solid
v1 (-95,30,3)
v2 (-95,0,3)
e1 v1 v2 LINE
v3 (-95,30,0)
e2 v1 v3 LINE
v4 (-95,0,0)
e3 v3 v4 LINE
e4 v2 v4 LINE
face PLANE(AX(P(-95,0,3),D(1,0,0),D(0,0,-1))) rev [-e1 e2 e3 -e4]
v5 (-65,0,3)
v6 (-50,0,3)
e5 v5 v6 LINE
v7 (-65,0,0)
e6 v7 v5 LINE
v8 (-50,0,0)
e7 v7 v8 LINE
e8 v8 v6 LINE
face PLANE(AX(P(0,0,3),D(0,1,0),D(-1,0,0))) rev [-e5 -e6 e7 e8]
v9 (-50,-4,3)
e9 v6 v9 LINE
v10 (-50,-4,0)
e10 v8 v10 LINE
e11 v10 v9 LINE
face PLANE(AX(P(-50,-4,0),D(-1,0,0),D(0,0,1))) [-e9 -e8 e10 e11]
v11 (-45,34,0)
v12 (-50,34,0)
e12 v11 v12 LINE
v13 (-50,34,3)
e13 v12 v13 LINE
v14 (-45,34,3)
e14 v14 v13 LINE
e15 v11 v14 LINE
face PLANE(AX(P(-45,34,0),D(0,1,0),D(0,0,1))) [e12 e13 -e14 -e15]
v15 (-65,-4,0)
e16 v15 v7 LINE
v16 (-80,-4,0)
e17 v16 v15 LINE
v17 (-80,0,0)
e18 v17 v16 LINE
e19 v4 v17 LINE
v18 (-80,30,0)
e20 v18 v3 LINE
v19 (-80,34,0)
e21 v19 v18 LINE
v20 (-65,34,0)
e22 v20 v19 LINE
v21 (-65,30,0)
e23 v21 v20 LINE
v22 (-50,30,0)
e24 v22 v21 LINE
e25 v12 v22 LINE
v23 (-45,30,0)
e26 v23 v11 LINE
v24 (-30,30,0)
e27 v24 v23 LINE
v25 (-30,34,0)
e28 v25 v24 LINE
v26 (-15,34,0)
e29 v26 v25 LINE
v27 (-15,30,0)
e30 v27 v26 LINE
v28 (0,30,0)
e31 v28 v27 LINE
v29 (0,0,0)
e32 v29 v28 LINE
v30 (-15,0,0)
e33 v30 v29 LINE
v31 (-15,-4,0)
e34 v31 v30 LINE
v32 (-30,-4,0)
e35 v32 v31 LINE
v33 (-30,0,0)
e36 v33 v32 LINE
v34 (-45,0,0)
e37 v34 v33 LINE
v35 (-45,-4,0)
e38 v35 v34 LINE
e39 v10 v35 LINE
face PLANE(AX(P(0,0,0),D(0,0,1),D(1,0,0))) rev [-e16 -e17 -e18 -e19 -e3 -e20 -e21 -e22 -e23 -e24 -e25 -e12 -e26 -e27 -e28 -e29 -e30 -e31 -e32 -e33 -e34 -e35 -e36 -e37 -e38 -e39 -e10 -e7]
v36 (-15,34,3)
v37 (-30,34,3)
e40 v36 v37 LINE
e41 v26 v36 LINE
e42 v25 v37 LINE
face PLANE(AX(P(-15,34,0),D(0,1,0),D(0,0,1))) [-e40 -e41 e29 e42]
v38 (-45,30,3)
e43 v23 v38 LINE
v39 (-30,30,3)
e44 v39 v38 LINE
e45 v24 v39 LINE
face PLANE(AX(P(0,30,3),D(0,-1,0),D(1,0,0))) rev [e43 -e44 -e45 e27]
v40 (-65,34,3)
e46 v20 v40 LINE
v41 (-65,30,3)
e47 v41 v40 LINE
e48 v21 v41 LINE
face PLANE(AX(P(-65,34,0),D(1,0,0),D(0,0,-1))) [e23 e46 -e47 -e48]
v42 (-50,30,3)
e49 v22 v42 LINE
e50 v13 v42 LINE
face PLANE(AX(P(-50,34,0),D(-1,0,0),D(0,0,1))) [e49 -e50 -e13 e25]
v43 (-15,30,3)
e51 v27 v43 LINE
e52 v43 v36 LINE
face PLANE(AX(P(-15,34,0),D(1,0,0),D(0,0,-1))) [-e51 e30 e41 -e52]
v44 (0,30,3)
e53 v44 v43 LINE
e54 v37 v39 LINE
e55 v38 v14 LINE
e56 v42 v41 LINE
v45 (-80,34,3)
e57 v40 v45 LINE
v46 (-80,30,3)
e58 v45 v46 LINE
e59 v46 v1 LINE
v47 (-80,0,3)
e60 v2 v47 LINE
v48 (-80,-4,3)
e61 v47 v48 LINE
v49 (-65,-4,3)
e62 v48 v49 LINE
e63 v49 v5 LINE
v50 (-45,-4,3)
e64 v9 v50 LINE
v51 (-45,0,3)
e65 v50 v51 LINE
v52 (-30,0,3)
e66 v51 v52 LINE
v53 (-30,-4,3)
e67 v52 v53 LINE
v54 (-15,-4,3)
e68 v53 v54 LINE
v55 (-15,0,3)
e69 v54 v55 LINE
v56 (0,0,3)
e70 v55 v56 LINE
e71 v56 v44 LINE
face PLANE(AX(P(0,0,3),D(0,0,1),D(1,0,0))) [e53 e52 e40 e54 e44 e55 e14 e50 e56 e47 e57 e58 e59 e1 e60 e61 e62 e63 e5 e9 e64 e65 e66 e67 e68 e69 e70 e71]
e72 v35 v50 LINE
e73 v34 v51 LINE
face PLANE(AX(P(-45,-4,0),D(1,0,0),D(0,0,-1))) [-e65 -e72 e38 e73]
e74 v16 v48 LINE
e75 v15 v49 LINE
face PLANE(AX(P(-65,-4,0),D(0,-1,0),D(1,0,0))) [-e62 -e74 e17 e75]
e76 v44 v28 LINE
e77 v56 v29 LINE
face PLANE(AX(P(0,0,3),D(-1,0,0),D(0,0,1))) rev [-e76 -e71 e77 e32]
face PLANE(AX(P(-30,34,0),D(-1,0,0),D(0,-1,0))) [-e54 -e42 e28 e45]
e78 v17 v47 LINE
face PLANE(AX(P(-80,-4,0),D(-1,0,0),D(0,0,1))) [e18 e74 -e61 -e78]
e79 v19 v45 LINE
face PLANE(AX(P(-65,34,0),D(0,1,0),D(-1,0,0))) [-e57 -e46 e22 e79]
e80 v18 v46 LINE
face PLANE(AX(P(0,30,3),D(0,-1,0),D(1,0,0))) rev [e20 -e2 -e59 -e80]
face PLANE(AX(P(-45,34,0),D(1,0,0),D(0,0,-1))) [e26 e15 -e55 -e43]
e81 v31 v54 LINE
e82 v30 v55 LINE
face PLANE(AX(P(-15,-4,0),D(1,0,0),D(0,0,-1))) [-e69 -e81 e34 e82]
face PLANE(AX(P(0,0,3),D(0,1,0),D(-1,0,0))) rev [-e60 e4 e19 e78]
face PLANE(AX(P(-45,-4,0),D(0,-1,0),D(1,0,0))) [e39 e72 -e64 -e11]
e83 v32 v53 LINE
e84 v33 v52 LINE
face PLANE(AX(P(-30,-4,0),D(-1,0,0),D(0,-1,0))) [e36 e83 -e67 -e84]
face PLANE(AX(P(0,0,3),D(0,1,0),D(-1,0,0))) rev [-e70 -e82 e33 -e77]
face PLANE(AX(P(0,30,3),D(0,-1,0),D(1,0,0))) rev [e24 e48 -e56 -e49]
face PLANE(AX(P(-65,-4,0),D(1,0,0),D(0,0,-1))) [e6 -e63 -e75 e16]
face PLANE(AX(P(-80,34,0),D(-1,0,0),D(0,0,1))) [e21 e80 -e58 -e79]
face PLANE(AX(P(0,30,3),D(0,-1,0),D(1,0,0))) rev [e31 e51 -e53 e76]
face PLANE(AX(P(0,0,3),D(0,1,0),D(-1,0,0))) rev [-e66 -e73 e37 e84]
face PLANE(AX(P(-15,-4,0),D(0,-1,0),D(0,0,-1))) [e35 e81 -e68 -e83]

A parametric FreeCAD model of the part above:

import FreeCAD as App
import Part
import Sketcher
Q = App.Units.Quantity


def add_polygon(sketch, points):
    """Adds a closed chain of lines whose ends are joined by coincident constraints."""
    first, n = sketch.GeometryCount, len(points)
    for a, b in zip(points, points[1:] + points[:1]):
        sketch.addGeometry(Part.LineSegment(App.Vector(*a, 0), App.Vector(*b, 0)), False)
    for i in range(n):
        sketch.addConstraint(Sketcher.Constraint("Coincident", first + i, 2, first + (i + 1) % n, 1))

doc = App.newDocument("Part")
body = doc.addObject("PartDesign::Body", "Body")

# Sketch on XY plane
sketch1 = body.newObject("Sketcher::SketchObject", "Sketch")
sketch1.AttachmentSupport = (doc.getObject("XY_Plane"), [""])
sketch1.MapMode = "FlatFace"
add_polygon(sketch1, [(-95, 30), (-95, 0), (0, 0), (0, 30)])  # lines 0-3
sketch1.addConstraint([
    Sketcher.Constraint("Vertical", 0),
    Sketcher.Constraint("Horizontal", 1),
    Sketcher.Constraint("Vertical", 2),
    Sketcher.Constraint("Horizontal", 3),
    Sketcher.Constraint("Coincident", 1, 2, -1, 1),
    Sketcher.Constraint("DistanceX", 1, 1, 1, 2, Q("95 mm")),
    Sketcher.Constraint("DistanceY", 0, 2, 0, 1, Q("30 mm")),
])
pad1 = body.newObject("PartDesign::Pad", "Pad")
pad1.Profile = sketch1
pad1.Length = 3

# Sketch on XY plane
sketch2 = body.newObject("Sketcher::SketchObject", "Sketch001")
sketch2.AttachmentSupport = (doc.getObject("XY_Plane"), [""])
sketch2.MapMode = "FlatFace"
sketch2.AttachmentOffset = App.Placement(App.Vector(0, 0, 3), App.Rotation())
add_polygon(sketch2, [(-30, 34), (-30, 30), (-15, 30), (-15, 34)])  # lines 0-3
add_polygon(sketch2, [(-80, 34), (-80, 30), (-65, 30), (-65, 34)])  # lines 4-7
add_polygon(sketch2, [(-50, 34), (-50, 30), (-45, 30), (-45, 34)])  # lines 8-11
add_polygon(sketch2, [(-30, 0), (-30, -4), (-15, -4), (-15, 0)])  # lines 12-15
add_polygon(sketch2, [(-50, 0), (-50, -4), (-45, -4), (-45, 0)])  # lines 16-19
add_polygon(sketch2, [(-80, 0), (-80, -4), (-65, -4), (-65, 0)])  # lines 20-23
sketch2.addConstraint([
    Sketcher.Constraint("Vertical", 0),
    Sketcher.Constraint("Horizontal", 1),
    Sketcher.Constraint("Vertical", 2),
    Sketcher.Constraint("Horizontal", 3),
    Sketcher.Constraint("Vertical", 4),
    Sketcher.Constraint("Horizontal", 5),
    Sketcher.Constraint("Vertical", 6),
    Sketcher.Constraint("Horizontal", 7),
    Sketcher.Constraint("Vertical", 8),
    Sketcher.Constraint("Horizontal", 9),
    Sketcher.Constraint("Vertical", 10),
    Sketcher.Constraint("Horizontal", 11),
    Sketcher.Constraint("Vertical", 12),
    Sketcher.Constraint("Horizontal", 13),
    Sketcher.Constraint("Vertical", 14),
    Sketcher.Constraint("Horizontal", 15),
    Sketcher.Constraint("Vertical", 16),
    Sketcher.Constraint("Horizontal", 17),
    Sketcher.Constraint("Vertical", 18),
    Sketcher.Constraint("Horizontal", 19),
    Sketcher.Constraint("Vertical", 20),
    Sketcher.Constraint("Horizontal", 21),
    Sketcher.Constraint("Vertical", 22),
    Sketcher.Constraint("Horizontal", 23),
    Sketcher.Constraint("PointOnObject", 14, 2, -1),
    Sketcher.Constraint("PointOnObject", 18, 2, -1),
    Sketcher.Constraint("PointOnObject", 22, 2, -1),
    Sketcher.Constraint("Horizontal", 1, 2, 4, 2),
    Sketcher.Constraint("Horizontal", 3, 2, 6, 2),
    Sketcher.Constraint("Horizontal", 5, 2, 8, 2),
    Sketcher.Constraint("Horizontal", 7, 2, 10, 2),
    Sketcher.Constraint("Horizontal", 13, 2, 16, 2),
    Sketcher.Constraint("Horizontal", 17, 2, 20, 2),
    Sketcher.Constraint("Vertical", 3, 2, 12, 2),
    Sketcher.Constraint("Vertical", 2, 2, 13, 2),
    Sketcher.Constraint("Vertical", 11, 2, 16, 2),
    Sketcher.Constraint("Vertical", 10, 2, 17, 2),
    Sketcher.Constraint("Vertical", 7, 2, 20, 2),
    Sketcher.Constraint("Vertical", 6, 2, 21, 2),
    Sketcher.Constraint("Equal", 3, 5),
    Sketcher.Constraint("Equal", 10, 12),
    Sketcher.Constraint("DistanceX", 1, 1, 1, 2, Q("15 mm")),
    Sketcher.Constraint("DistanceX", 9, 1, 9, 2, Q("5 mm")),
    Sketcher.Constraint("DistanceY", 0, 2, 0, 1, Q("4 mm")),
    Sketcher.Constraint("DistanceX", 0, 2, -1, 1, Q("30 mm")),
    Sketcher.Constraint("DistanceY", -1, 1, 0, 2, Q("30 mm")),
    Sketcher.Constraint("DistanceX", 4, 2, -1, 1, Q("80 mm")),
    Sketcher.Constraint("DistanceX", 8, 2, -1, 1, Q("50 mm")),
])
pad2 = body.newObject("PartDesign::Pad", "Pad001")
pad2.Profile = sketch2
pad2.Length = 3
pad2.Reversed = True

doc.recompute()
